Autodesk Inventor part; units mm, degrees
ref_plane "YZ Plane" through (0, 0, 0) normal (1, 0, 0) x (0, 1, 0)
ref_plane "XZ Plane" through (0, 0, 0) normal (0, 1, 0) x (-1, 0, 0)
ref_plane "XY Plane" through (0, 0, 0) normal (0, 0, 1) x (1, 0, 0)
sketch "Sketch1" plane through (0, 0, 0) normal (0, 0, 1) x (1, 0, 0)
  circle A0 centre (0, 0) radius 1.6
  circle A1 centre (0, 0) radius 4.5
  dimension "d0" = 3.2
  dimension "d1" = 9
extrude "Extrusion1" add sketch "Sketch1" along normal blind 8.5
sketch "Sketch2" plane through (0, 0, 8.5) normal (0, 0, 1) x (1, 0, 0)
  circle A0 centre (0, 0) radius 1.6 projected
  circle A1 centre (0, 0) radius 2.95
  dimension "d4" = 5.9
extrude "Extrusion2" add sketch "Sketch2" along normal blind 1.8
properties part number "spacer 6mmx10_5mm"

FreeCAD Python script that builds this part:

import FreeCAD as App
import Part
import Sketcher
Q = App.Units.Quantity

doc = App.newDocument("Part")
body = doc.addObject("PartDesign::Body", "Body")

# Sketch on XY plane
sketch1 = doc.addObject("Sketcher::SketchObject", "Sketch")
body.addObject(sketch1)
sketch1.AttachmentSupport = (doc.XY_Plane, [""])
sketch1.MapMode = "FlatFace"
sketch1.addGeometry(Part.Circle(App.Vector(0, 0, 0), App.Vector(0, 0, 1), 4.5), False)
sketch1.addGeometry(Part.Circle(App.Vector(0, 0, 0), App.Vector(0, 0, 1), 1.6), False)
sketch1.addConstraint(Sketcher.Constraint("Coincident", 0, 3, -1, 1))
sketch1.addConstraint(Sketcher.Constraint("Coincident", 1, 3, -1, 1))
sketch1.addConstraint(Sketcher.Constraint("Diameter", 0, Q("9 mm")))
sketch1.addConstraint(Sketcher.Constraint("Diameter", 1, Q("3.2 mm")))
pad1 = doc.addObject("PartDesign::Pad", "Pad")
body.addObject(pad1)
pad1.Profile = sketch1
pad1.Length = 8.5

# Sketch on XY plane
sketch2 = doc.addObject("Sketcher::SketchObject", "Sketch001")
body.addObject(sketch2)
sketch2.AttachmentSupport = (doc.XY_Plane, [""])
sketch2.MapMode = "FlatFace"
sketch2.AttachmentOffset = App.Placement(App.Vector(0, 0, 8.5), App.Rotation())
sketch2.addGeometry(Part.Circle(App.Vector(0, 0, 0), App.Vector(0, 0, 1), 2.95), False)
sketch2.addGeometry(Part.Circle(App.Vector(0, 0, 0), App.Vector(0, 0, 1), 1.6), False)
sketch2.addConstraint(Sketcher.Constraint("Coincident", 0, 3, -1, 1))
sketch2.addConstraint(Sketcher.Constraint("Coincident", 1, 3, -1, 1))
sketch2.addConstraint(Sketcher.Constraint("Diameter", 0, Q("5.9 mm")))
sketch2.addConstraint(Sketcher.Constraint("Diameter", 1, Q("3.2 mm")))
pad2 = doc.addObject("PartDesign::Pad", "Pad001")
body.addObject(pad2)
pad2.Profile = sketch2
pad2.Length = 1.8

doc.recompute()
